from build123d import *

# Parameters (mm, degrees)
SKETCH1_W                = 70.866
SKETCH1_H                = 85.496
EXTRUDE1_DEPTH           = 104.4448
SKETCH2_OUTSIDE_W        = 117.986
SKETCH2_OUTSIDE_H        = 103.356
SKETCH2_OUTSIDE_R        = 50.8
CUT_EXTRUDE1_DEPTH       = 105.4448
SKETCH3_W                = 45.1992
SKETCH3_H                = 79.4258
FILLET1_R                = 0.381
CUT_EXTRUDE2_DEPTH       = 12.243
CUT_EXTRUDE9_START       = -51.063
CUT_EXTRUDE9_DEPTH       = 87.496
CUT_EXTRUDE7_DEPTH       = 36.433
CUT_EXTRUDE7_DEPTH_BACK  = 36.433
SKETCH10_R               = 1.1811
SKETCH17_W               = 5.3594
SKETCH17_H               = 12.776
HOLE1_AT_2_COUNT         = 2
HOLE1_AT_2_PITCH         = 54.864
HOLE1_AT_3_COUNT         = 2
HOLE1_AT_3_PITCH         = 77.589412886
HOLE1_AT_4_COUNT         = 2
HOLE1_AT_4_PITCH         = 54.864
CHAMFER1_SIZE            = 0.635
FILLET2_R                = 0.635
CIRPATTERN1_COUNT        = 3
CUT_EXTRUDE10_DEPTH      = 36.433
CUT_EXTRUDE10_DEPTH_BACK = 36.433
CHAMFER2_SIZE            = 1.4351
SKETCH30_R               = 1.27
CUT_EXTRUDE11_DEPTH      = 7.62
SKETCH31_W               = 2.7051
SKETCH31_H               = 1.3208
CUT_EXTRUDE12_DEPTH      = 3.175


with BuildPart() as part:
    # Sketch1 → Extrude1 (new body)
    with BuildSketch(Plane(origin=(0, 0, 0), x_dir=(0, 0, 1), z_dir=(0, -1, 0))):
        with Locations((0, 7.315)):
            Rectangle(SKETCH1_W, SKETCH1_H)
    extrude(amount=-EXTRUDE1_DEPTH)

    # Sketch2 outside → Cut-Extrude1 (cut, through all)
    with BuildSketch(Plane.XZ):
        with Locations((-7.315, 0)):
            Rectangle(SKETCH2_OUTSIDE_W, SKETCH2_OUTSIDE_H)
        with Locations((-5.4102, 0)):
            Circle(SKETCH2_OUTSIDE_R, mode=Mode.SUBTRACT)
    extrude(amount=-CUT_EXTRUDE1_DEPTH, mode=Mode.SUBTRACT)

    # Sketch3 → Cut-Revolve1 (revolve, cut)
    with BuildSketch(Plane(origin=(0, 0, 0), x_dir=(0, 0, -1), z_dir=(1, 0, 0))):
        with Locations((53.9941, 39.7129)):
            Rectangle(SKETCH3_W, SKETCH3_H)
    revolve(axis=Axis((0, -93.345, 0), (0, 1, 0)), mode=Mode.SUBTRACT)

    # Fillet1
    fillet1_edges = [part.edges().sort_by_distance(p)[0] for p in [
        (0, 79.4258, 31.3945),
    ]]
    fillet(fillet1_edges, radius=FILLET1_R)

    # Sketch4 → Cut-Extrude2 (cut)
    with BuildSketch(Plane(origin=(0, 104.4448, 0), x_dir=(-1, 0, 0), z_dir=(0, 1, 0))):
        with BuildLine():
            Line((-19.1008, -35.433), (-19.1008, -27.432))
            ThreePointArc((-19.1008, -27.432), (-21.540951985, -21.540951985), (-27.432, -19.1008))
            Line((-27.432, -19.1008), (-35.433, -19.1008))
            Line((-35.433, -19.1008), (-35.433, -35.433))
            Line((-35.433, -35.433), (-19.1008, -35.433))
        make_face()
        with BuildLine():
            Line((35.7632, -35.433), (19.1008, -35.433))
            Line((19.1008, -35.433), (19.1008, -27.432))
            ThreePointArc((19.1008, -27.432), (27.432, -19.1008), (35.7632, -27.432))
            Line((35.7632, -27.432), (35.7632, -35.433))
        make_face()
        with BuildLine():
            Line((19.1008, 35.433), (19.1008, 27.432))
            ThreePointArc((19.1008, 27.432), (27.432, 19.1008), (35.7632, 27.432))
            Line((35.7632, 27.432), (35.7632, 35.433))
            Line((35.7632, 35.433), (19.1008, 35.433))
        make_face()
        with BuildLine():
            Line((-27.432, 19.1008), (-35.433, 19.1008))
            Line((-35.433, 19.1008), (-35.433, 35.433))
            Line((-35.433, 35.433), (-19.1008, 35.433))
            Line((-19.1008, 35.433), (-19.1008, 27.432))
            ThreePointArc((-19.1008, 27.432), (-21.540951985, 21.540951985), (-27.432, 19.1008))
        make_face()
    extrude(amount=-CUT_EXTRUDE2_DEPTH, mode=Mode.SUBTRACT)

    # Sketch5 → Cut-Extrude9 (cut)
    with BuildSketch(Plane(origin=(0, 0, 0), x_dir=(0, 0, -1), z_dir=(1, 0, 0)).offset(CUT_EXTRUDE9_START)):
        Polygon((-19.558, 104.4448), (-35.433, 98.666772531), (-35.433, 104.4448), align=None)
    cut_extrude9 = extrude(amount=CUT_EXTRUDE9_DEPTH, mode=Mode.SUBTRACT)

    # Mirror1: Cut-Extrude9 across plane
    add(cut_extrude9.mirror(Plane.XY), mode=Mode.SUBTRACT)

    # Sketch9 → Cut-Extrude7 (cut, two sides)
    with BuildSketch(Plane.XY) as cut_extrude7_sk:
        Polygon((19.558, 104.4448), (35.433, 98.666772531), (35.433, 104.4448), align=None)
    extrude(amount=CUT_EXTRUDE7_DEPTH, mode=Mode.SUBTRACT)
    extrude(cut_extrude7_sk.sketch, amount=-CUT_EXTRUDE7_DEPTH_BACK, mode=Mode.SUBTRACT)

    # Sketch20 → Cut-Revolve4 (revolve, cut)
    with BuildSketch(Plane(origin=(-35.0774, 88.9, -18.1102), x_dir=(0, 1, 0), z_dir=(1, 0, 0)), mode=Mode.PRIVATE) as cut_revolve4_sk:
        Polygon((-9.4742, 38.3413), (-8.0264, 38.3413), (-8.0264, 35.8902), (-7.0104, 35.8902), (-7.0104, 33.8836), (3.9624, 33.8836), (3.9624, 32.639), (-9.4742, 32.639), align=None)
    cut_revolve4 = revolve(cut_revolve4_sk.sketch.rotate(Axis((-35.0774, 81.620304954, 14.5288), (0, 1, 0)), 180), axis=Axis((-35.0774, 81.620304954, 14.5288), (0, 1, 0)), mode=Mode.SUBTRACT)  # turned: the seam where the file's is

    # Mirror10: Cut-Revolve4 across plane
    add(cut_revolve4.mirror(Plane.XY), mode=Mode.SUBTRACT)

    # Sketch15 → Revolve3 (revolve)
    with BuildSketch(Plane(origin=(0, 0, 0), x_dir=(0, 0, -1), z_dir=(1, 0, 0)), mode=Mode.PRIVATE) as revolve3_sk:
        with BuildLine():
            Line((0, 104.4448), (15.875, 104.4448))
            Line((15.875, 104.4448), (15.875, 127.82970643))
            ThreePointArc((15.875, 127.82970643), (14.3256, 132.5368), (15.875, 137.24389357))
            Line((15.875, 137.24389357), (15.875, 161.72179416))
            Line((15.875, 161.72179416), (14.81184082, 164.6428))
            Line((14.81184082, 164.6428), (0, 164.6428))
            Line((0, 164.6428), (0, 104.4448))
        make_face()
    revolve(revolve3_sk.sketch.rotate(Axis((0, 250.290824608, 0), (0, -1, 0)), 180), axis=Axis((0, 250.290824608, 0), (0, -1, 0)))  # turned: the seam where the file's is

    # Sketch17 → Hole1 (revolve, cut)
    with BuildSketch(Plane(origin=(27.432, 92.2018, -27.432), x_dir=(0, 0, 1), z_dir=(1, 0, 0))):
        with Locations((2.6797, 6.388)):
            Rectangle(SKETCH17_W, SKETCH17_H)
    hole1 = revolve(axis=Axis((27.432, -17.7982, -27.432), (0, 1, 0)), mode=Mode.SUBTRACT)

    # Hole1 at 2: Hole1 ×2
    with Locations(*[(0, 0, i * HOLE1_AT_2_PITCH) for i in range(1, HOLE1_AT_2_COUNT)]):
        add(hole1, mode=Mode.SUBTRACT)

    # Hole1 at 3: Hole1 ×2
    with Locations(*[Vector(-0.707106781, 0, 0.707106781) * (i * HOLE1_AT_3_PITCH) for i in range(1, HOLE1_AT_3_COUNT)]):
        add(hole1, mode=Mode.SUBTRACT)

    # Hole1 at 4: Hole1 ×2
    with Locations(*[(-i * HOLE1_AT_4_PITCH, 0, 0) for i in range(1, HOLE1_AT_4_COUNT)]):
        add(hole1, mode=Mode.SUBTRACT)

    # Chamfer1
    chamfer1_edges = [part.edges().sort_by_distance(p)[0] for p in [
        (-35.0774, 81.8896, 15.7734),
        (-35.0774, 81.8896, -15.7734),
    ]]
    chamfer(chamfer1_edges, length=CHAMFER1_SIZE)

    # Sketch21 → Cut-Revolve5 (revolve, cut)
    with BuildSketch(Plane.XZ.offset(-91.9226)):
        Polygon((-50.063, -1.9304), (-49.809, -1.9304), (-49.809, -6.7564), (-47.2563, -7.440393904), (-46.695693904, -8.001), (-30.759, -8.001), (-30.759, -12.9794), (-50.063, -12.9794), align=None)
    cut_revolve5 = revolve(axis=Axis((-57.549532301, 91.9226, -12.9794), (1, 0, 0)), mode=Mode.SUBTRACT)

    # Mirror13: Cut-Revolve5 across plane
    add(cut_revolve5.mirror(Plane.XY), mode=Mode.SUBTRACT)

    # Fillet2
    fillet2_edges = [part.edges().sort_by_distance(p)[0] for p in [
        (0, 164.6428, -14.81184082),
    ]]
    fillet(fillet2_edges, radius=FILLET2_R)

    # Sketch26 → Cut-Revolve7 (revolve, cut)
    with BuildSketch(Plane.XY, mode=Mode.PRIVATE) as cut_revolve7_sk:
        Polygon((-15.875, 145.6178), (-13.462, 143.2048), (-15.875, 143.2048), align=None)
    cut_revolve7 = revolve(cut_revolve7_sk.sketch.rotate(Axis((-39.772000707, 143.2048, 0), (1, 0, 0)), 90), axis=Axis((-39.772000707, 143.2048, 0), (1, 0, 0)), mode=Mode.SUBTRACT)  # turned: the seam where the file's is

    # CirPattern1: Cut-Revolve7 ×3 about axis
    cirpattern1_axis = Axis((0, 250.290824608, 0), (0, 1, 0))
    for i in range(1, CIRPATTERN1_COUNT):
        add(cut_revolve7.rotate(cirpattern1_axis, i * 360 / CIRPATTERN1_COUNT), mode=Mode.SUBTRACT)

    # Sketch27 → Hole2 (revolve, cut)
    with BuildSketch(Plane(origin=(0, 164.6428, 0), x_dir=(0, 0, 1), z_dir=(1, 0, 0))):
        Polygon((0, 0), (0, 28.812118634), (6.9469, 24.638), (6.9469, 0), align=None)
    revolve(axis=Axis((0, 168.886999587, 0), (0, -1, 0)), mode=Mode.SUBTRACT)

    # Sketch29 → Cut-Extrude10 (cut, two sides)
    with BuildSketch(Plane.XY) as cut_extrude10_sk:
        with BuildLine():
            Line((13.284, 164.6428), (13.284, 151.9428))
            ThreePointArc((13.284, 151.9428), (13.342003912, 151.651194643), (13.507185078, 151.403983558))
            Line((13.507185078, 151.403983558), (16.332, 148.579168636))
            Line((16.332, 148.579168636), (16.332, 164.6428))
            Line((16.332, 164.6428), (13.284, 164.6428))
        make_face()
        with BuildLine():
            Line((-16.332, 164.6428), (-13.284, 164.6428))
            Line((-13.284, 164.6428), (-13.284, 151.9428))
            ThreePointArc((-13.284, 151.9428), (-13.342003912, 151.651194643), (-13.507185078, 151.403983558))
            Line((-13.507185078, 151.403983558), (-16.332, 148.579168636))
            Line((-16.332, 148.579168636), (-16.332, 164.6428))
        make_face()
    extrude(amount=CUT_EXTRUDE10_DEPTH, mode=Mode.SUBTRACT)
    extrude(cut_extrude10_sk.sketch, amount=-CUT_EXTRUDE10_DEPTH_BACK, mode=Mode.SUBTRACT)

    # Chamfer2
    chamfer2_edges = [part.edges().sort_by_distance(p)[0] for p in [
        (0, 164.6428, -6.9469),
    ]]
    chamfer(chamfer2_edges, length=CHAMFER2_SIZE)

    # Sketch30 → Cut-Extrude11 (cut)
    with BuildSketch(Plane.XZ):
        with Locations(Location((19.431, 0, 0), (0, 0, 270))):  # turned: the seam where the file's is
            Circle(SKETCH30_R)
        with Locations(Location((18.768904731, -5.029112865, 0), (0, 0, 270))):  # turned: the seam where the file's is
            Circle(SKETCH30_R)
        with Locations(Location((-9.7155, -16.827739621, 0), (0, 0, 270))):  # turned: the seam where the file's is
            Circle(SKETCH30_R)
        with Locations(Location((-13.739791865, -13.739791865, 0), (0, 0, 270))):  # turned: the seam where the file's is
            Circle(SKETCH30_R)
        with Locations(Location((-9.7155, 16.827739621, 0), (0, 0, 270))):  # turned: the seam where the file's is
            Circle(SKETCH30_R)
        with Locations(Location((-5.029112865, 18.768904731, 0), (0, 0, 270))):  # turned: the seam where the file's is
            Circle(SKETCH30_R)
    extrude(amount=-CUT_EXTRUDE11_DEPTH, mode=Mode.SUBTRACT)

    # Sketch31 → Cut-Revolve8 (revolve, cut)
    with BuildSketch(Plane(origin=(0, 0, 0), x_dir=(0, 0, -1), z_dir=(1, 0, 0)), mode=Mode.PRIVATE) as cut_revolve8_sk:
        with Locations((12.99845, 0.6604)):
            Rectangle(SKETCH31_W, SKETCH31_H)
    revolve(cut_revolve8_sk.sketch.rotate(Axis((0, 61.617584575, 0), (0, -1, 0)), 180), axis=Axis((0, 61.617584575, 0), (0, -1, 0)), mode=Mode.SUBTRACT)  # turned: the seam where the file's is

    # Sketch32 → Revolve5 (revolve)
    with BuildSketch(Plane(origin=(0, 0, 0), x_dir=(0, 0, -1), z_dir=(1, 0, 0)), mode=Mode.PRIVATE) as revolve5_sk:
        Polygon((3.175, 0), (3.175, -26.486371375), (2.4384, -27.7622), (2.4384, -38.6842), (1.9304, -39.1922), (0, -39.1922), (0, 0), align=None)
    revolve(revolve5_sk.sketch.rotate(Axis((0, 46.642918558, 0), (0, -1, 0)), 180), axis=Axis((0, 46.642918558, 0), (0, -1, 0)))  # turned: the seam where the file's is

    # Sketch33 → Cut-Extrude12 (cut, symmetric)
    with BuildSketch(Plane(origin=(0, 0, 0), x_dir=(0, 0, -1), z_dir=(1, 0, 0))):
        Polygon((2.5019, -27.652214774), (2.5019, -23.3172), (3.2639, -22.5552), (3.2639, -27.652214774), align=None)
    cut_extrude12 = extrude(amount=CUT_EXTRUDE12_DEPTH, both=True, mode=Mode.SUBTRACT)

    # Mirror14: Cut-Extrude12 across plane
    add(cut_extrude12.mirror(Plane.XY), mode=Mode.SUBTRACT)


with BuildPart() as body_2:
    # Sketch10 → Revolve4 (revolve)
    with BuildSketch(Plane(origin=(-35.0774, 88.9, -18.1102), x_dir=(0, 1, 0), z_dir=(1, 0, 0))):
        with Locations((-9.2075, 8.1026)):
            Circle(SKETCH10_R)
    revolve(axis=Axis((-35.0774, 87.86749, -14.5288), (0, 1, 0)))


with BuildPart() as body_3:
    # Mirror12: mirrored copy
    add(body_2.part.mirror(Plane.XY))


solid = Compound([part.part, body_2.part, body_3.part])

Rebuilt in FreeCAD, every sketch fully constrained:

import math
import FreeCAD as App
import Part
import Sketcher
Q = App.Units.Quantity


def edges_at(feature, points):
    """Names of the edges that pass closest to the given points."""
    edges = feature.Shape.Edges
    near = lambda p: min(range(len(edges)), key=lambda i: edges[i].distToShape(Part.Vertex(*p))[0])
    return sorted({f"Edge{near(p) + 1}" for p in points})

doc = App.newDocument("Part")
body = doc.addObject("PartDesign::Body", "Body")

# Sketch on XZ plane
sketch1 = body.newObject("Sketcher::SketchObject", "Sketch")
sketch1.AttachmentSupport = (doc.getObject("XZ_Plane"), [""])
sketch1.MapMode = "FlatFace"
sketch1.addGeometry([
    Part.LineSegment(App.Vector(-50.063, -35.433, 0), App.Vector(35.433, -35.433, 0)),
    Part.LineSegment(App.Vector(35.433, -35.433, 0), App.Vector(35.433, 35.433, 0)),
    Part.LineSegment(App.Vector(35.433, 35.433, 0), App.Vector(-50.063, 35.433, 0)),
    Part.LineSegment(App.Vector(-50.063, 35.433, 0), App.Vector(-50.063, -35.433, 0)),
], False)
sketch1.addConstraint([
    Sketcher.Constraint("Coincident", 0, 2, 1, 1),
    Sketcher.Constraint("Coincident", 1, 2, 2, 1),
    Sketcher.Constraint("Coincident", 2, 2, 3, 1),
    Sketcher.Constraint("Coincident", 3, 2, 0, 1),
    Sketcher.Constraint("Horizontal", 0),
    Sketcher.Constraint("Vertical", 1),
    Sketcher.Constraint("Horizontal", 2),
    Sketcher.Constraint("Vertical", 3),
    Sketcher.Constraint("DistanceY", 1, 1, 1, 2, Q("2.79 in")),
    Sketcher.Constraint("DistanceX", -1, 1, 0, 2, Q("1.395 in")),
    Sketcher.Constraint("DistanceY", 0, 2, -1, 1, Q("1.395 in")),
    Sketcher.Constraint("DistanceX", 0, 1, 0, 2, Q("85.496 mm")),
])
pad1 = body.newObject("PartDesign::Pad", "Pad")
pad1.Profile = sketch1
pad1.Length = Q("4.112 in")
pad1.Reversed = True

# Sketch on XZ plane
sketch2 = body.newObject("Sketcher::SketchObject", "Sketch001")
sketch2.AttachmentSupport = (doc.getObject("XZ_Plane"), [""])
sketch2.MapMode = "FlatFace"
sketch2.addGeometry([
    Part.LineSegment(App.Vector(-66.308, 51.678, 0), App.Vector(-66.308, -51.678, 0)),  # 0
    Part.LineSegment(App.Vector(-66.308, -51.678, 0), App.Vector(51.678, -51.678, 0)),  # 1
    Part.LineSegment(App.Vector(51.678, -51.678, 0), App.Vector(51.678, 51.678, 0)),  # 2
    Part.LineSegment(App.Vector(51.678, 51.678, 0), App.Vector(-66.308, 51.678, 0)),  # 3
    Part.Circle(App.Vector(-5.4102, 0, 0), App.Vector(0, 0, 1), 50.8),  # 4
], False)
sketch2.addConstraint([
    Sketcher.Constraint("Coincident", 0, 2, 1, 1),
    Sketcher.Constraint("Coincident", 1, 2, 2, 1),
    Sketcher.Constraint("Coincident", 2, 2, 3, 1),
    Sketcher.Constraint("Coincident", 3, 2, 0, 1),
    Sketcher.Constraint("Vertical", 0),
    Sketcher.Constraint("Horizontal", 1),
    Sketcher.Constraint("Vertical", 2),
    Sketcher.Constraint("Horizontal", 3),
    Sketcher.Constraint("PointOnObject", 4, 3, -1),
    Sketcher.Constraint("Diameter", 4, Q("4 in")),
    Sketcher.Constraint("DistanceX", 4, 3, -1, 1, Q("0.213 in")),
    Sketcher.Constraint("DistanceX", 1, 1, 1, 2, Q("117.986 mm")),
    Sketcher.Constraint("DistanceY", 0, 2, 0, 1, Q("103.356 mm")),
    Sketcher.Constraint("DistanceX", 0, 2, -1, 1, Q("66.308 mm")),
    Sketcher.Constraint("DistanceY", 0, 2, -1, 1, Q("51.678 mm")),
])
pocket1 = body.newObject("PartDesign::Pocket", "Pocket")
pocket1.Profile = sketch2
pocket1.Type = "ThroughAll"

# Sketch on YZ plane
sketch3 = body.newObject("Sketcher::SketchObject", "Sketch002")
sketch3.AttachmentSupport = (doc.getObject("YZ_Plane"), [""])
sketch3.MapMode = "FlatFace"
sketch3.addGeometry([
    Part.LineSegment(App.Vector(79.4258, -31.3945, 0), App.Vector(0, -31.3945, 0)),
    Part.LineSegment(App.Vector(0, -31.3945, 0), App.Vector(0, -76.5937, 0)),
    Part.LineSegment(App.Vector(0, -76.5937, 0), App.Vector(79.4258, -76.5937, 0)),
    Part.LineSegment(App.Vector(79.4258, -76.5937, 0), App.Vector(79.4258, -31.3945, 0)),
], False)
sketch3.addConstraint([
    Sketcher.Constraint("Coincident", 0, 2, 1, 1),
    Sketcher.Constraint("Coincident", 1, 2, 2, 1),
    Sketcher.Constraint("Coincident", 2, 2, 3, 1),
    Sketcher.Constraint("Coincident", 3, 2, 0, 1),
    Sketcher.Constraint("Horizontal", 0),
    Sketcher.Constraint("Vertical", 1),
    Sketcher.Constraint("Horizontal", 2),
    Sketcher.Constraint("Vertical", 3),
    Sketcher.Constraint("PointOnObject", 0, 2, -2),
    Sketcher.Constraint("DistanceX", 0, 2, 0, 1, Q("3.127 in")),
    Sketcher.Constraint("DistanceY", 1, 2, 1, 1, Q("45.1992 mm")),
    Sketcher.Constraint("DistanceY", 1, 2, -1, 1, Q("3.0155 in")),
])
groove = body.newObject("PartDesign::Groove", "Groove")
groove.Profile = sketch3
groove.ReferenceAxis = (sketch3, ["H_Axis"])
groove.Angle = 360
doc.recompute()

fillet = body.newObject("PartDesign::Fillet", "Fillet")
fillet.Base = (groove, edges_at(groove, [(0, 79.426, 31.395)]))
fillet.Radius = Q("0.015 in")

# Sketch on XZ plane
sketch4 = body.newObject("Sketcher::SketchObject", "Sketch003")
sketch4.AttachmentSupport = (doc.getObject("XZ_Plane"), [""])
sketch4.MapMode = "FlatFace"
sketch4.AttachmentOffset = App.Placement(App.Vector(0, 0, -4.112 * 25.4), App.Rotation())
sketch4.addGeometry([
    Part.LineSegment(App.Vector(19.1008, -35.433, 0), App.Vector(19.1008, -27.432, 0)),  # 0
    Part.ArcOfCircle(Part.Circle(App.Vector(27.432, -27.432, 0), App.Vector(0, 0, 1), 8.3312), math.radians(90), math.radians(180)),  # 1
    Part.LineSegment(App.Vector(27.432, -19.1008, 0), App.Vector(35.433, -19.1008, 0)),  # 2
    Part.LineSegment(App.Vector(35.433, -19.1008, 0), App.Vector(35.433, -35.433, 0)),  # 3
    Part.LineSegment(App.Vector(35.433, -35.433, 0), App.Vector(19.1008, -35.433, 0)),  # 4
    Part.LineSegment(App.Vector(-19.1008, -35.433, 0), App.Vector(-35.7632, -35.433, 0)),  # 5
    Part.LineSegment(App.Vector(-35.7632, -35.433, 0), App.Vector(-35.7632, -27.432, 0)),  # 6
    Part.ArcOfCircle(Part.Circle(App.Vector(-27.432, -27.432, 0), App.Vector(0, 0, 1), 8.3312), math.radians(0), math.radians(180)),  # 7
    Part.LineSegment(App.Vector(-19.1008, -27.432, 0), App.Vector(-19.1008, -35.433, 0)),  # 8
    Part.LineSegment(App.Vector(-19.1008, 35.433, 0), App.Vector(-19.1008, 27.432, 0)),  # 9
    Part.ArcOfCircle(Part.Circle(App.Vector(-27.432, 27.432, 0), App.Vector(0, 0, 1), 8.3312), math.radians(180), math.radians(360)),  # 10
    Part.LineSegment(App.Vector(-35.7632, 27.432, 0), App.Vector(-35.7632, 35.433, 0)),  # 11
    Part.LineSegment(App.Vector(-35.7632, 35.433, 0), App.Vector(-19.1008, 35.433, 0)),  # 12
    Part.LineSegment(App.Vector(35.433, 19.1008, 0), App.Vector(27.432, 19.1008, 0)),  # 13
    Part.ArcOfCircle(Part.Circle(App.Vector(27.432, 27.432, 0), App.Vector(0, 0, 1), 8.3312), math.radians(-180), math.radians(-90)),  # 14
    Part.LineSegment(App.Vector(19.1008, 27.432, 0), App.Vector(19.1008, 35.433, 0)),  # 15
    Part.LineSegment(App.Vector(19.1008, 35.433, 0), App.Vector(35.433, 35.433, 0)),  # 16
    Part.LineSegment(App.Vector(35.433, 35.433, 0), App.Vector(35.433, 19.1008, 0)),  # 17
], False)
sketch4.addConstraint([
    Sketcher.Constraint("Tangent", 0, 2, 1, 2),
    Sketcher.Constraint("Tangent", 1, 1, 2, 1),
    Sketcher.Constraint("Coincident", 2, 2, 3, 1),
    Sketcher.Constraint("Coincident", 3, 2, 4, 1),
    Sketcher.Constraint("Coincident", 4, 2, 0, 1),
    Sketcher.Constraint("Coincident", 5, 2, 6, 1),
    Sketcher.Constraint("Tangent", 6, 2, 7, 2),
    Sketcher.Constraint("Tangent", 7, 1, 8, 1),
    Sketcher.Constraint("Coincident", 8, 2, 5, 1),
    Sketcher.Constraint("Tangent", 9, 2, 10, 2),
    Sketcher.Constraint("Tangent", 10, 1, 11, 1),
    Sketcher.Constraint("Coincident", 11, 2, 12, 1),
    Sketcher.Constraint("Coincident", 12, 2, 9, 1),
    Sketcher.Constraint("Tangent", 13, 2, 14, 2),
    Sketcher.Constraint("Tangent", 14, 1, 15, 1),
    Sketcher.Constraint("Coincident", 15, 2, 16, 1),
    Sketcher.Constraint("Coincident", 16, 2, 17, 1),
    Sketcher.Constraint("Coincident", 17, 2, 13, 1),
    Sketcher.Constraint("Vertical", 0),
    Sketcher.Constraint("Horizontal", 2),
    Sketcher.Constraint("Vertical", 3),
    Sketcher.Constraint("Horizontal", 4),
    Sketcher.Constraint("Horizontal", 5),
    Sketcher.Constraint("Vertical", 6),
    Sketcher.Constraint("Vertical", 8),
    Sketcher.Constraint("Vertical", 9),
    Sketcher.Constraint("Vertical", 11),
    Sketcher.Constraint("Horizontal", 12),
    Sketcher.Constraint("Horizontal", 13),
    Sketcher.Constraint("Vertical", 15),
    Sketcher.Constraint("Horizontal", 16),
    Sketcher.Constraint("Vertical", 17),
    Sketcher.Constraint("Equal", 1, 7),
    Sketcher.Constraint("Equal", 7, 10),
    Sketcher.Constraint("Equal", 10, 14),
    Sketcher.Constraint("Symmetric", 1, 3, 10, 3, -1, 1),
    Sketcher.Constraint("Symmetric", 7, 3, 14, 3, -1, 1),
    Sketcher.Constraint("Symmetric", 1, 3, 7, 3, -2),
    Sketcher.Constraint("Symmetric", 3, 2, 16, 2, -1),
    Sketcher.Constraint("Horizontal", 4, 2, 5, 2),
    Sketcher.Constraint("Horizontal", 12, 2, 15, 2),
    Sketcher.Constraint("Equal", 13, 0),
    Sketcher.Constraint("Radius", 1, Q("0.328 in")),
    Sketcher.Constraint("DistanceX", 2, 1, 2, 2, Q("0.315 in")),
    Sketcher.Constraint("DistanceX", -1, 1, 1, 3, Q("1.08 in")),
    Sketcher.Constraint("DistanceY", 1, 3, -1, 1, Q("1.08 in")),
])
pocket2 = body.newObject("PartDesign::Pocket", "Pocket001")
pocket2.Profile = sketch4
pocket2.Length = 12.243
pocket2.Reversed = True

# Sketch on YZ plane
sketch5 = body.newObject("Sketcher::SketchObject", "Sketch004")
sketch5.AttachmentSupport = (doc.getObject("YZ_Plane"), [""])
sketch5.MapMode = "FlatFace"
sketch5.AttachmentOffset = App.Placement(App.Vector(0, 0, -51.063), App.Rotation())
sketch5.addGeometry([
    Part.LineSegment(App.Vector(98.666773, 35.433, 0), App.Vector(104.4448, 19.558, 0)),
    Part.LineSegment(App.Vector(104.4448, 19.558, 0), App.Vector(104.4448, 35.433, 0)),
    Part.LineSegment(App.Vector(104.4448, 35.433, 0), App.Vector(98.666773, 35.433, 0)),
], False)
sketch5.addConstraint([
    Sketcher.Constraint("Coincident", 0, 2, 1, 1),
    Sketcher.Constraint("Coincident", 1, 2, 2, 1),
    Sketcher.Constraint("Coincident", 2, 2, 0, 1),
    Sketcher.Constraint("Vertical", 1),
    Sketcher.Constraint("Horizontal", 2),
    Sketcher.Constraint("Angle", 0, Q("-70 deg")),
    Sketcher.Constraint("DistanceY", 1, 1, 1, 2, Q("0.625 in")),
    Sketcher.Constraint("DistanceY", -1, 1, 0, 2, Q("0.77 in")),
    Sketcher.Constraint("DistanceX", -1, 1, 0, 2, Q("4.112 in")),
])
pocket3 = body.newObject("PartDesign::Pocket", "Pocket002")
pocket3.Profile = sketch5
pocket3.Length = 87.496
pocket3.Reversed = True
doc.recompute()

mirrored = body.newObject("PartDesign::Mirrored", "Mirrored")
mirrored.Originals = [pocket3]
mirrored.MirrorPlane = (doc.getObject("XY_Plane"), [""])
body.Tip = mirrored

# Sketch on XY plane
sketch6 = body.newObject("Sketcher::SketchObject", "Sketch005")
sketch6.AttachmentSupport = (doc.getObject("XY_Plane"), [""])
sketch6.MapMode = "FlatFace"
sketch6.addGeometry([
    Part.LineSegment(App.Vector(19.558, 104.4448, 0), App.Vector(35.433, 98.666773, 0)),
    Part.LineSegment(App.Vector(35.433, 98.666773, 0), App.Vector(35.433, 104.4448, 0)),
    Part.LineSegment(App.Vector(35.433, 104.4448, 0), App.Vector(19.558, 104.4448, 0)),
], False)
sketch6.addConstraint([
    Sketcher.Constraint("Coincident", 0, 2, 1, 1),
    Sketcher.Constraint("Coincident", 1, 2, 2, 1),
    Sketcher.Constraint("Coincident", 2, 2, 0, 1),
    Sketcher.Constraint("Vertical", 1),
    Sketcher.Constraint("Horizontal", 2),
    Sketcher.Constraint("Angle", 0, Q("-20 deg")),
    Sketcher.Constraint("DistanceX", 2, 2, 2, 1, Q("0.625 in")),
    Sketcher.Constraint("DistanceX", -1, 1, 2, 2, Q("0.77 in")),
    Sketcher.Constraint("DistanceY", -1, 1, 1, 2, Q("4.112 in")),
])
pocket4 = body.newObject("PartDesign::Pocket", "Pocket003")
pocket4.Profile = sketch6
pocket4.Type = "ThroughAll"
pocket4.Midplane = True

# Sketch on YZ plane
sketch7 = body.newObject("Sketcher::SketchObject", "Sketch006")
sketch7.AttachmentSupport = (doc.getObject("YZ_Plane"), [""])
sketch7.MapMode = "FlatFace"
sketch7.AttachmentOffset = App.Placement(App.Vector(0, 0, -1.381 * 25.4), App.Rotation())
sketch7.addGeometry([
    Part.LineSegment(App.Vector(80.8736, 20.2311, 0), App.Vector(79.4258, 20.2311, 0)),  # 0
    Part.LineSegment(App.Vector(79.4258, 20.2311, 0), App.Vector(79.4258, 14.5288, 0)),  # 1
    Part.LineSegment(App.Vector(79.4258, 14.5288, 0), App.Vector(92.8624, 14.5288, 0)),  # 2
    Part.LineSegment(App.Vector(92.8624, 14.5288, 0), App.Vector(92.8624, 15.7734, 0)),  # 3
    Part.LineSegment(App.Vector(92.8624, 15.7734, 0), App.Vector(81.8896, 15.7734, 0)),  # 4
    Part.LineSegment(App.Vector(81.8896, 15.7734, 0), App.Vector(81.8896, 17.78, 0)),  # 5
    Part.LineSegment(App.Vector(81.8896, 17.78, 0), App.Vector(80.8736, 17.78, 0)),  # 6
    Part.LineSegment(App.Vector(80.8736, 17.78, 0), App.Vector(80.8736, 20.2311, 0)),  # 7
], False)
sketch7.addGeometry(Part.LineSegment(App.Vector(79.4258, 14.5288, 0), App.Vector(92.8624, 14.5288, 0)), True)  # axis
sketch7.addConstraint([
    Sketcher.Constraint("Coincident", 0, 2, 1, 1),
    Sketcher.Constraint("Coincident", 1, 2, 2, 1),
    Sketcher.Constraint("Coincident", 2, 2, 3, 1),
    Sketcher.Constraint("Coincident", 3, 2, 4, 1),
    Sketcher.Constraint("Coincident", 4, 2, 5, 1),
    Sketcher.Constraint("Coincident", 5, 2, 6, 1),
    Sketcher.Constraint("Coincident", 6, 2, 7, 1),
    Sketcher.Constraint("Coincident", 7, 2, 0, 1),
    Sketcher.Constraint("Horizontal", 0),
    Sketcher.Constraint("Vertical", 1),
    Sketcher.Constraint("Horizontal", 2),
    Sketcher.Constraint("Vertical", 3),
    Sketcher.Constraint("Horizontal", 4),
    Sketcher.Constraint("Vertical", 5),
    Sketcher.Constraint("Horizontal", 6),
    Sketcher.Constraint("Vertical", 7),
    Sketcher.Constraint("Horizontal", 8),
    Sketcher.Constraint("Coincident", 8, 1, 1, 2),
    Sketcher.Constraint("Vertical", 3, 2, 8, 2),
    Sketcher.Constraint("DistanceX", 6, 2, 6, 1, Q("0.04 in")),
    Sketcher.Constraint("DistanceY", -1, 1, 5, 2, Q("0.7 in")),
    Sketcher.Constraint("DistanceX", 0, 2, 0, 1, Q("0.057 in")),
    Sketcher.Constraint("DistanceX", 2, 1, 2, 2, Q("0.529 in")),
    Sketcher.Constraint("DistanceY", 3, 1, 3, 2, Q("0.049 in")),
    Sketcher.Constraint("DistanceY", 5, 1, 5, 2, Q("0.079 in")),
    Sketcher.Constraint("DistanceY", 1, 2, 1, 1, Q("0.2245 in")),
    Sketcher.Constraint("DistanceX", -1, 1, 0, 2, Q("3.127 in")),
])
groove2 = body.newObject("PartDesign::Groove", "Groove001")
groove2.Profile = sketch7
groove2.ReferenceAxis = (sketch7, ["Axis0"])
groove2.Angle = 360
doc.recompute()

mirrored2 = body.newObject("PartDesign::Mirrored", "Mirrored001")
mirrored2.Originals = [groove2]
mirrored2.MirrorPlane = (doc.getObject("XY_Plane"), [""])
body.Tip = mirrored2

# Sketch on YZ plane
sketch8 = body.newObject("Sketcher::SketchObject", "Sketch007")
sketch8.AttachmentSupport = (doc.getObject("YZ_Plane"), [""])
sketch8.MapMode = "FlatFace"
sketch8.addGeometry([
    Part.LineSegment(App.Vector(104.4448, 0, 0), App.Vector(104.4448, -15.875, 0)),  # 0
    Part.LineSegment(App.Vector(104.4448, -15.875, 0), App.Vector(127.829706, -15.875, 0)),  # 1
    Part.ArcOfCircle(Part.Circle(App.Vector(132.5368, -22.2504, 0), App.Vector(0, 0, 1), 7.9248), math.radians(53.560758), math.radians(126.439242)),  # 2
    Part.LineSegment(App.Vector(137.243894, -15.875, 0), App.Vector(161.721794, -15.875, 0)),  # 3
    Part.LineSegment(App.Vector(161.721794, -15.875, 0), App.Vector(164.6428, -14.811841, 0)),  # 4
    Part.LineSegment(App.Vector(164.6428, -14.811841, 0), App.Vector(164.6428, 0, 0)),  # 5
    Part.LineSegment(App.Vector(164.6428, 0, 0), App.Vector(104.4448, 0, 0)),  # 6
], False)
sketch8.addConstraint([
    Sketcher.Constraint("Coincident", 0, 2, 1, 1),
    Sketcher.Constraint("Coincident", 1, 2, 2, 2),
    Sketcher.Constraint("Coincident", 2, 1, 3, 1),
    Sketcher.Constraint("Coincident", 3, 2, 4, 1),
    Sketcher.Constraint("Coincident", 4, 2, 5, 1),
    Sketcher.Constraint("Coincident", 5, 2, 6, 1),
    Sketcher.Constraint("Coincident", 6, 2, 0, 1),
    Sketcher.Constraint("Vertical", 0),
    Sketcher.Constraint("Horizontal", 1),
    Sketcher.Constraint("Horizontal", 3),
    Sketcher.Constraint("Vertical", 5),
    Sketcher.Constraint("Horizontal", 6),
    Sketcher.Constraint("PointOnObject", 5, 2, -1),
    Sketcher.Constraint("Horizontal", 1, 2, 2, 1),
    Sketcher.Constraint("Angle", 4, Q("20 deg")),
    Sketcher.Constraint("Radius", 2, Q("0.312 in")),
    Sketcher.Constraint("DistanceX", 6, 2, 6, 1, Q("2.37 in")),
    Sketcher.Constraint("DistanceY", 0, 2, 0, 1, Q("0.625 in")),
    Sketcher.Constraint("DistanceY", 2, 3, -1, 1, Q("0.876 in")),
    Sketcher.Constraint("DistanceX", -1, 1, 0, 2, Q("4.112 in")),
    Sketcher.Constraint("DistanceX", 3, 1, 3, 2, Q("24.477901 mm")),
    Sketcher.Constraint("DistanceY", 5, 1, 5, 2, Q("14.811841 mm")),
])
revolution = body.newObject("PartDesign::Revolution", "Revolution")
revolution.Profile = sketch8
revolution.ReferenceAxis = (sketch8, ["H_Axis"])
revolution.Angle = 360

# Sketch on YZ plane
sketch9 = body.newObject("Sketcher::SketchObject", "Sketch008")
sketch9.AttachmentSupport = (doc.getObject("YZ_Plane"), [""])
sketch9.MapMode = "FlatFace"
sketch9.AttachmentOffset = App.Placement(App.Vector(0, 0, 1.08 * 25.4), App.Rotation())
sketch9.addGeometry([
    Part.LineSegment(App.Vector(79.4258, -27.432, 0), App.Vector(92.2018, -27.432, 0)),
    Part.LineSegment(App.Vector(92.2018, -27.432, 0), App.Vector(92.2018, -22.0726, 0)),
    Part.LineSegment(App.Vector(92.2018, -22.0726, 0), App.Vector(79.4258, -22.0726, 0)),
    Part.LineSegment(App.Vector(79.4258, -22.0726, 0), App.Vector(79.4258, -27.432, 0)),
], False)
sketch9.addGeometry(Part.LineSegment(App.Vector(79.4258, -27.432, 0), App.Vector(92.2018, -27.432, 0)), True)  # axis
sketch9.addConstraint([
    Sketcher.Constraint("Coincident", 0, 2, 1, 1),
    Sketcher.Constraint("Coincident", 1, 2, 2, 1),
    Sketcher.Constraint("Coincident", 2, 2, 3, 1),
    Sketcher.Constraint("Coincident", 3, 2, 0, 1),
    Sketcher.Constraint("Horizontal", 0),
    Sketcher.Constraint("Vertical", 1),
    Sketcher.Constraint("Horizontal", 2),
    Sketcher.Constraint("Vertical", 3),
    Sketcher.Constraint("Horizontal", 4),
    Sketcher.Constraint("Coincident", 4, 1, 3, 2),
    Sketcher.Constraint("Vertical", 1, 2, 4, 2),
    Sketcher.Constraint("DistanceY", 1, 1, 1, 2, Q("0.211 in")),
    Sketcher.Constraint("DistanceY", 0, 2, -1, 1, Q("1.08 in")),
    Sketcher.Constraint("DistanceX", -1, 1, 2, 2, Q("3.127 in")),
    Sketcher.Constraint("DistanceX", 0, 1, 0, 2, Q("12.776 mm")),
])
groove3 = body.newObject("PartDesign::Groove", "Groove002")
groove3.Profile = sketch9
groove3.ReferenceAxis = (sketch9, ["Axis0"])
groove3.Angle = 360
doc.recompute()

linearpattern = body.newObject("PartDesign::LinearPattern", "LinearPattern")
linearpattern.Originals = [groove3]
linearpattern.Direction = (doc.getObject("Z_Axis"), [""])
linearpattern.Mode = "offset"
linearpattern.Offset = Q("2.16 in")
linearpattern.Occurrences = 2
body.Tip = linearpattern
doc.recompute()

datumline = body.newObject("PartDesign::Line", "DatumLine")
datumline.Placement = App.Placement(App.Vector(0, 0, 0), App.Rotation(App.Vector(0, 0, 1), App.Vector(-0.707106781, 0, 0.707106781)))
linearpattern2 = body.newObject("PartDesign::LinearPattern", "LinearPattern001")
linearpattern2.Originals = [groove3]
linearpattern2.Direction = (datumline, [""])
linearpattern2.Mode = "offset"
linearpattern2.Offset = 77.589413
linearpattern2.Occurrences = 2
body.Tip = linearpattern2
doc.recompute()

linearpattern3 = body.newObject("PartDesign::LinearPattern", "LinearPattern002")
linearpattern3.Originals = [groove3]
linearpattern3.Direction = (doc.getObject("X_Axis"), [""])
linearpattern3.Mode = "offset"
linearpattern3.Offset = Q("2.16 in")
linearpattern3.Occurrences = 2
linearpattern3.Reversed = True
body.Tip = linearpattern3
doc.recompute()

chamfer = body.newObject("PartDesign::Chamfer", "Chamfer")
chamfer.Base = (linearpattern3, edges_at(linearpattern3, [(-35.077, 81.89, 15.773), (-35.077, 81.89, -15.773)]))
chamfer.Size = Q("0.025 in")

# Sketch on XZ plane
sketch10 = body.newObject("Sketcher::SketchObject", "Sketch009")
sketch10.AttachmentSupport = (doc.getObject("XZ_Plane"), [""])
sketch10.MapMode = "FlatFace"
sketch10.AttachmentOffset = App.Placement(App.Vector(0, 0, -3.619 * 25.4), App.Rotation())
sketch10.addGeometry([
    Part.LineSegment(App.Vector(-49.809, -1.9304, 0), App.Vector(-50.063, -1.9304, 0)),  # 0
    Part.LineSegment(App.Vector(-50.063, -1.9304, 0), App.Vector(-50.063, -12.9794, 0)),  # 1
    Part.LineSegment(App.Vector(-50.063, -12.9794, 0), App.Vector(-30.759, -12.9794, 0)),  # 2
    Part.LineSegment(App.Vector(-30.759, -12.9794, 0), App.Vector(-30.759, -8.001, 0)),  # 3
    Part.LineSegment(App.Vector(-30.759, -8.001, 0), App.Vector(-46.695694, -8.001, 0)),  # 4
    Part.LineSegment(App.Vector(-46.695694, -8.001, 0), App.Vector(-47.2563, -7.440394, 0)),  # 5
    Part.LineSegment(App.Vector(-47.2563, -7.440394, 0), App.Vector(-49.809, -6.7564, 0)),  # 6
    Part.LineSegment(App.Vector(-49.809, -6.7564, 0), App.Vector(-49.809, -1.9304, 0)),  # 7
], False)
sketch10.addGeometry(Part.LineSegment(App.Vector(-50.063, -12.9794, 0), App.Vector(-30.759, -12.9794, 0)), True)  # axis
sketch10.addConstraint([
    Sketcher.Constraint("Coincident", 0, 2, 1, 1),
    Sketcher.Constraint("Coincident", 1, 2, 2, 1),
    Sketcher.Constraint("Coincident", 2, 2, 3, 1),
    Sketcher.Constraint("Coincident", 3, 2, 4, 1),
    Sketcher.Constraint("Coincident", 4, 2, 5, 1),
    Sketcher.Constraint("Coincident", 5, 2, 6, 1),
    Sketcher.Constraint("Coincident", 6, 2, 7, 1),
    Sketcher.Constraint("Coincident", 7, 2, 0, 1),
    Sketcher.Constraint("Horizontal", 0),
    Sketcher.Constraint("Vertical", 1),
    Sketcher.Constraint("Horizontal", 2),
    Sketcher.Constraint("Vertical", 3),
    Sketcher.Constraint("Horizontal", 4),
    Sketcher.Constraint("Vertical", 7),
    Sketcher.Constraint("Horizontal", 8),
    Sketcher.Constraint("Coincident", 8, 1, 1, 2),
    Sketcher.Constraint("Vertical", 3, 2, 8, 2),
    Sketcher.Constraint("Angle", 5, Q("135 deg")),
    Sketcher.Constraint("Angle", 6, Q("165 deg")),
    Sketcher.Constraint("DistanceX", 0, 2, 0, 1, Q("0.01 in")),
    Sketcher.Constraint("DistanceX", 2, 1, 2, 2, Q("0.76 in")),
    Sketcher.Constraint("DistanceY", 7, 1, 7, 2, Q("0.19 in")),
    Sketcher.Constraint("DistanceY", 1, 2, 1, 1, Q("0.435 in")),
    Sketcher.Constraint("DistanceY", 3, 1, 3, 2, Q("0.196 in")),
    Sketcher.Constraint("DistanceY", 0, 2, -1, 1, Q("0.076 in")),
    Sketcher.Constraint("DistanceX", 0, 2, 5, 2, Q("0.1105 in")),
    Sketcher.Constraint("DistanceX", 0, 2, -1, 1, Q("50.063 mm")),
])
groove4 = body.newObject("PartDesign::Groove", "Groove003")
groove4.Profile = sketch10
groove4.ReferenceAxis = (sketch10, ["Axis0"])
groove4.Angle = 360
doc.recompute()

mirrored3 = body.newObject("PartDesign::Mirrored", "Mirrored002")
mirrored3.Originals = [groove4]
mirrored3.MirrorPlane = (doc.getObject("XY_Plane"), [""])
body.Tip = mirrored3
doc.recompute()

fillet2 = body.newObject("PartDesign::Fillet", "Fillet001")
fillet2.Base = (mirrored3, edges_at(mirrored3, [(0, 164.643, -14.812)]))
fillet2.Radius = Q("0.025 in")

# Sketch on XY plane
sketch11 = body.newObject("Sketcher::SketchObject", "Sketch010")
sketch11.AttachmentSupport = (doc.getObject("XY_Plane"), [""])
sketch11.MapMode = "FlatFace"
sketch11.addGeometry([
    Part.LineSegment(App.Vector(-13.462, 143.2048, 0), App.Vector(-15.875, 145.6178, 0)),
    Part.LineSegment(App.Vector(-15.875, 145.6178, 0), App.Vector(-15.875, 143.2048, 0)),
    Part.LineSegment(App.Vector(-15.875, 143.2048, 0), App.Vector(-13.462, 143.2048, 0)),
], False)
sketch11.addGeometry(Part.LineSegment(App.Vector(-15.875, 143.2048, 0), App.Vector(-13.462, 143.2048, 0)), True)  # axis
sketch11.addConstraint([
    Sketcher.Constraint("Coincident", 0, 2, 1, 1),
    Sketcher.Constraint("Coincident", 1, 2, 2, 1),
    Sketcher.Constraint("Coincident", 2, 2, 0, 1),
    Sketcher.Constraint("Vertical", 1),
    Sketcher.Constraint("Horizontal", 2),
    Sketcher.Constraint("Horizontal", 3),
    Sketcher.Constraint("Coincident", 3, 1, 1, 2),
    Sketcher.Constraint("Equal", 2, 3),
    Sketcher.Constraint("Equal", 3, 1),
    Sketcher.Constraint("DistanceX", 2, 1, 2, 2, Q("0.095 in")),
    Sketcher.Constraint("DistanceX", 2, 2, -1, 1, Q("0.53 in")),
    Sketcher.Constraint("DistanceY", -1, 1, 0, 2, Q("145.6178 mm")),
])
groove5 = body.newObject("PartDesign::Groove", "Groove004")
groove5.Profile = sketch11
groove5.ReferenceAxis = (sketch11, ["Axis0"])
groove5.Angle = 360
doc.recompute()

polarpattern = body.newObject("PartDesign::PolarPattern", "PolarPattern")
polarpattern.Originals = [groove5]
polarpattern.Axis = (doc.getObject("Y_Axis"), [""])
polarpattern.Angle = 360
polarpattern.Occurrences = 3
body.Tip = polarpattern

# Sketch on YZ plane
sketch12 = body.newObject("Sketcher::SketchObject", "Sketch011")
sketch12.AttachmentSupport = (doc.getObject("YZ_Plane"), [""])
sketch12.MapMode = "FlatFace"
sketch12.addGeometry([
    Part.LineSegment(App.Vector(135.830681, 0, 0), App.Vector(164.6428, 0, 0)),
    Part.LineSegment(App.Vector(164.6428, 0, 0), App.Vector(164.6428, 6.9469, 0)),
    Part.LineSegment(App.Vector(164.6428, 6.9469, 0), App.Vector(140.0048, 6.9469, 0)),
    Part.LineSegment(App.Vector(140.0048, 6.9469, 0), App.Vector(135.830681, 0, 0)),
], False)
sketch12.addConstraint([
    Sketcher.Constraint("Coincident", 0, 2, 1, 1),
    Sketcher.Constraint("Coincident", 1, 2, 2, 1),
    Sketcher.Constraint("Coincident", 2, 2, 3, 1),
    Sketcher.Constraint("Coincident", 3, 2, 0, 1),
    Sketcher.Constraint("Horizontal", 0),
    Sketcher.Constraint("Vertical", 1),
    Sketcher.Constraint("Horizontal", 2),
    Sketcher.Constraint("PointOnObject", 0, 2, -1),
    Sketcher.Constraint("Angle", 3, Q("-121 deg")),
    Sketcher.Constraint("DistanceX", 2, 2, 2, 1, Q("0.97 in")),
    Sketcher.Constraint("DistanceY", 1, 1, 1, 2, Q("0.2735 in")),
    Sketcher.Constraint("DistanceX", -1, 1, 0, 2, Q("6.482 in")),
])
groove6 = body.newObject("PartDesign::Groove", "Groove005")
groove6.Profile = sketch12
groove6.ReferenceAxis = (sketch12, ["H_Axis"])
groove6.Angle = 360

# Sketch on XY plane
sketch13 = body.newObject("Sketcher::SketchObject", "Sketch012")
sketch13.AttachmentSupport = (doc.getObject("XY_Plane"), [""])
sketch13.MapMode = "FlatFace"
sketch13.addGeometry([
    Part.LineSegment(App.Vector(13.284, 164.6428, 0), App.Vector(13.284, 151.9428, 0)),  # 0
    Part.ArcOfCircle(Part.Circle(App.Vector(14.046002, 151.9428, 0), App.Vector(0, 0, 1), 0.762002), math.radians(180), math.radians(225)),  # 1
    Part.LineSegment(App.Vector(13.507185, 151.403984, 0), App.Vector(16.332, 148.579169, 0)),  # 2
    Part.LineSegment(App.Vector(16.332, 148.579169, 0), App.Vector(16.332, 164.6428, 0)),  # 3
    Part.LineSegment(App.Vector(16.332, 164.6428, 0), App.Vector(13.284, 164.6428, 0)),  # 4
    Part.LineSegment(App.Vector(-13.284, 164.6428, 0), App.Vector(-16.332, 164.6428, 0)),  # 5
    Part.LineSegment(App.Vector(-16.332, 164.6428, 0), App.Vector(-16.332, 148.579169, 0)),  # 6
    Part.LineSegment(App.Vector(-16.332, 148.579169, 0), App.Vector(-13.507185, 151.403984, 0)),  # 7
    Part.ArcOfCircle(Part.Circle(App.Vector(-14.046002, 151.9428, 0), App.Vector(0, 0, 1), 0.762002), math.radians(-45), math.radians(0)),  # 8
    Part.LineSegment(App.Vector(-13.284, 151.9428, 0), App.Vector(-13.284, 164.6428, 0)),  # 9
], False)
sketch13.addConstraint([
    Sketcher.Constraint("Tangent", 0, 2, 1, 1),
    Sketcher.Constraint("Tangent", 1, 2, 2, 1),
    Sketcher.Constraint("Coincident", 2, 2, 3, 1),
    Sketcher.Constraint("Coincident", 3, 2, 4, 1),
    Sketcher.Constraint("Coincident", 4, 2, 0, 1),
    Sketcher.Constraint("Coincident", 5, 2, 6, 1),
    Sketcher.Constraint("Coincident", 6, 2, 7, 1),
    Sketcher.Constraint("Tangent", 7, 2, 8, 1),
    Sketcher.Constraint("Tangent", 8, 2, 9, 1),
    Sketcher.Constraint("Coincident", 9, 2, 5, 1),
    Sketcher.Constraint("Vertical", 0),
    Sketcher.Constraint("Vertical", 3),
    Sketcher.Constraint("Horizontal", 4),
    Sketcher.Constraint("Horizontal", 5),
    Sketcher.Constraint("Vertical", 6),
    Sketcher.Constraint("Vertical", 9),
    Sketcher.Constraint("Equal", 1, 8),
    Sketcher.Constraint("Symmetric", 1, 3, 8, 3, -2),
    Sketcher.Constraint("Symmetric", 3, 2, 5, 2, -2),
    Sketcher.Constraint("Perpendicular", 2, 7),
    Sketcher.Constraint("Horizontal", 2, 2, 6, 2),
    Sketcher.Constraint("Radius", 1, Q("0.0300001 in")),
    Sketcher.Constraint("DistanceY", 0, 2, 0, 1, Q("0.5 in")),
    Sketcher.Constraint("DistanceX", 4, 2, 4, 1, Q("0.12 in")),
    Sketcher.Constraint("DistanceY", -1, 1, 1, 3, Q("5.982 in")),
    Sketcher.Constraint("DistanceX", -1, 1, 1, 3, Q("14.046002 mm")),
])
pocket5 = body.newObject("PartDesign::Pocket", "Pocket004")
pocket5.Profile = sketch13
pocket5.Type = "ThroughAll"
pocket5.Midplane = True
doc.recompute()

chamfer2 = body.newObject("PartDesign::Chamfer", "Chamfer001")
chamfer2.Base = (pocket5, edges_at(pocket5, [(0, 164.643, -6.947)]))
chamfer2.Size = Q("0.0565 in")

# Sketch on XZ plane
sketch14 = body.newObject("Sketcher::SketchObject", "Sketch013")
sketch14.AttachmentSupport = (doc.getObject("XZ_Plane"), [""])
sketch14.MapMode = "FlatFace"
sketch14.addGeometry([
    Part.Circle(App.Vector(19.431, 0, 0), App.Vector(0, 0, 1), 1.27),  # 0
    Part.Circle(App.Vector(18.768905, -5.029113, 0), App.Vector(0, 0, 1), 1.27),  # 1
    Part.Circle(App.Vector(-9.7155, -16.82774, 0), App.Vector(0, 0, 1), 1.27),  # 2
    Part.Circle(App.Vector(-13.739792, -13.739792, 0), App.Vector(0, 0, 1), 1.27),  # 3
    Part.Circle(App.Vector(-9.7155, 16.82774, 0), App.Vector(0, 0, 1), 1.27),  # 4
    Part.Circle(App.Vector(-5.029113, 18.768905, 0), App.Vector(0, 0, 1), 1.27),  # 5
], False)
sketch14.addConstraint([
    Sketcher.Constraint("Equal", 0, 1),
    Sketcher.Constraint("Equal", 1, 2),
    Sketcher.Constraint("Equal", 2, 3),
    Sketcher.Constraint("Equal", 3, 4),
    Sketcher.Constraint("Equal", 4, 5),
    Sketcher.Constraint("Symmetric", 2, 3, 4, 3, -1),
    Sketcher.Constraint("PointOnObject", 0, 3, -1),
    Sketcher.Constraint("Diameter", 0, Q("0.1 in")),
    Sketcher.Constraint("DistanceX", -1, 1, 0, 3, Q("0.765 in")),
    Sketcher.Constraint("DistanceX", 2, 3, -1, 1, Q("0.3825 in")),
    Sketcher.Constraint("DistanceY", 2, 3, -1, 1, Q("16.82774 mm")),
    Sketcher.Constraint("DistanceX", 3, 3, -1, 1, Q("13.739792 mm")),
    Sketcher.Constraint("DistanceY", 3, 3, -1, 1, Q("13.739792 mm")),
    Sketcher.Constraint("DistanceY", 3, 3, 1, 3, Q("8.710679 mm")),
    Sketcher.Constraint("DistanceX", 3, 3, 5, 3, Q("8.710679 mm")),
    Sketcher.Constraint("DistanceX", -1, 1, 1, 3, Q("18.768905 mm")),
    Sketcher.Constraint("DistanceY", -1, 1, 5, 3, Q("18.768905 mm")),
])
pocket6 = body.newObject("PartDesign::Pocket", "Pocket005")
pocket6.Profile = sketch14
pocket6.Length = Q("0.3 in")

# Sketch on YZ plane
sketch15 = body.newObject("Sketcher::SketchObject", "Sketch014")
sketch15.AttachmentSupport = (doc.getObject("YZ_Plane"), [""])
sketch15.MapMode = "FlatFace"
sketch15.addGeometry([
    Part.LineSegment(App.Vector(1.3208, -11.6459, 0), App.Vector(0, -11.6459, 0)),
    Part.LineSegment(App.Vector(0, -11.6459, 0), App.Vector(0, -14.351, 0)),
    Part.LineSegment(App.Vector(0, -14.351, 0), App.Vector(1.3208, -14.351, 0)),
    Part.LineSegment(App.Vector(1.3208, -14.351, 0), App.Vector(1.3208, -11.6459, 0)),
], False)
sketch15.addConstraint([
    Sketcher.Constraint("Coincident", 0, 2, 1, 1),
    Sketcher.Constraint("Coincident", 1, 2, 2, 1),
    Sketcher.Constraint("Coincident", 2, 2, 3, 1),
    Sketcher.Constraint("Coincident", 3, 2, 0, 1),
    Sketcher.Constraint("Horizontal", 0),
    Sketcher.Constraint("Vertical", 1),
    Sketcher.Constraint("Horizontal", 2),
    Sketcher.Constraint("Vertical", 3),
    Sketcher.Constraint("PointOnObject", 0, 2, -2),
    Sketcher.Constraint("DistanceX", 0, 2, 0, 1, Q("0.052 in")),
    Sketcher.Constraint("DistanceY", 1, 2, 1, 1, Q("0.1065 in")),
    Sketcher.Constraint("DistanceY", 1, 2, -1, 1, Q("0.565 in")),
])
groove7 = body.newObject("PartDesign::Groove", "Groove006")
groove7.Profile = sketch15
groove7.ReferenceAxis = (sketch15, ["H_Axis"])
groove7.Angle = 360

# Sketch on YZ plane
sketch16 = body.newObject("Sketcher::SketchObject", "Sketch015")
sketch16.AttachmentSupport = (doc.getObject("YZ_Plane"), [""])
sketch16.MapMode = "FlatFace"
sketch16.addGeometry([
    Part.LineSegment(App.Vector(-26.486371, -3.175, 0), App.Vector(0, -3.175, 0)),  # 0
    Part.LineSegment(App.Vector(0, -3.175, 0), App.Vector(0, 0, 0)),  # 1
    Part.LineSegment(App.Vector(0, 0, 0), App.Vector(-39.1922, 0, 0)),  # 2
    Part.LineSegment(App.Vector(-39.1922, 0, 0), App.Vector(-39.1922, -1.9304, 0)),  # 3
    Part.LineSegment(App.Vector(-39.1922, -1.9304, 0), App.Vector(-38.6842, -2.4384, 0)),  # 4
    Part.LineSegment(App.Vector(-38.6842, -2.4384, 0), App.Vector(-27.7622, -2.4384, 0)),  # 5
    Part.LineSegment(App.Vector(-27.7622, -2.4384, 0), App.Vector(-26.486371, -3.175, 0)),  # 6
], False)
sketch16.addConstraint([
    Sketcher.Constraint("Coincident", 0, 2, 1, 1),
    Sketcher.Constraint("Coincident", 1, 2, 2, 1),
    Sketcher.Constraint("Coincident", 2, 2, 3, 1),
    Sketcher.Constraint("Coincident", 3, 2, 4, 1),
    Sketcher.Constraint("Coincident", 4, 2, 5, 1),
    Sketcher.Constraint("Coincident", 5, 2, 6, 1),
    Sketcher.Constraint("Coincident", 6, 2, 0, 1),
    Sketcher.Constraint("Horizontal", 0),
    Sketcher.Constraint("Vertical", 1),
    Sketcher.Constraint("Horizontal", 2),
    Sketcher.Constraint("Vertical", 3),
    Sketcher.Constraint("Horizontal", 5),
    Sketcher.Constraint("Coincident", 1, 2, -1, 1),
    Sketcher.Constraint("Angle", 4, Q("-45 deg")),
    Sketcher.Constraint("Angle", 6, Q("-30 deg")),
    Sketcher.Constraint("DistanceX", 5, 1, 5, 2, Q("0.43 in")),
    Sketcher.Constraint("DistanceX", 2, 2, 2, 1, Q("1.543 in")),
    Sketcher.Constraint("DistanceY", 1, 1, 1, 2, Q("0.125 in")),
    Sketcher.Constraint("DistanceY", 3, 2, 3, 1, Q("0.076 in")),
    Sketcher.Constraint("DistanceX", 3, 2, 4, 2, Q("0.02 in")),
])
revolution2 = body.newObject("PartDesign::Revolution", "Revolution001")
revolution2.Profile = sketch16
revolution2.ReferenceAxis = (sketch16, ["H_Axis"])
revolution2.Angle = 360

# Sketch on YZ plane
sketch17 = body.newObject("Sketcher::SketchObject", "Sketch016")
sketch17.AttachmentSupport = (doc.getObject("YZ_Plane"), [""])
sketch17.MapMode = "FlatFace"
sketch17.addGeometry([
    Part.LineSegment(App.Vector(-23.3172, -2.5019, 0), App.Vector(-27.652215, -2.5019, 0)),
    Part.LineSegment(App.Vector(-27.652215, -2.5019, 0), App.Vector(-27.652215, -3.2639, 0)),
    Part.LineSegment(App.Vector(-27.652215, -3.2639, 0), App.Vector(-22.5552, -3.2639, 0)),
    Part.LineSegment(App.Vector(-22.5552, -3.2639, 0), App.Vector(-23.3172, -2.5019, 0)),
], False)
sketch17.addConstraint([
    Sketcher.Constraint("Coincident", 0, 2, 1, 1),
    Sketcher.Constraint("Coincident", 1, 2, 2, 1),
    Sketcher.Constraint("Coincident", 2, 2, 3, 1),
    Sketcher.Constraint("Coincident", 3, 2, 0, 1),
    Sketcher.Constraint("Horizontal", 0),
    Sketcher.Constraint("Vertical", 1),
    Sketcher.Constraint("Horizontal", 2),
    Sketcher.Constraint("Angle", 3, Q("135 deg")),
    Sketcher.Constraint("DistanceY", 1, 2, 1, 1, Q("0.03 in")),
    Sketcher.Constraint("DistanceX", 2, 2, -1, 1, Q("0.888 in")),
    Sketcher.Constraint("DistanceY", 0, 2, -1, 1, Q("0.0985 in")),
    Sketcher.Constraint("DistanceX", 0, 2, 0, 1, Q("4.335015 mm")),
])
pocket7 = body.newObject("PartDesign::Pocket", "Pocket006")
pocket7.Profile = sketch17
pocket7.Length = Q("0.25 in")
pocket7.Midplane = True
doc.recompute()

mirrored4 = body.newObject("PartDesign::Mirrored", "Mirrored003")
mirrored4.Originals = [pocket7]
mirrored4.MirrorPlane = (doc.getObject("XY_Plane"), [""])
body.Tip = mirrored4
body2 = doc.addObject("PartDesign::Body", "Body001")

# Sketch on YZ plane
sketch18 = body2.newObject("Sketcher::SketchObject", "Sketch017")
sketch18.AttachmentSupport = (doc.getObject("YZ_Plane001"), [""])
sketch18.MapMode = "FlatFace"
sketch18.AttachmentOffset = App.Placement(App.Vector(0, 0, -1.381 * 25.4), App.Rotation())
sketch18.addGeometry(Part.Circle(App.Vector(79.6925, -10.0076, 0), App.Vector(0, 0, 1), 1.1811), False)
sketch18.addGeometry(Part.LineSegment(App.Vector(79.6925, -14.5288, 0), App.Vector(89.6925, -14.5288, 0)), True)  # axis
sketch18.addConstraint([
    Sketcher.Constraint("Horizontal", 1),
    Sketcher.Constraint("Vertical", 0, 3, 1, 1),
    Sketcher.Constraint("Diameter", 0, Q("0.093 in")),
    Sketcher.Constraint("DistanceY", 0, 3, -1, 1, Q("0.394 in")),
    Sketcher.Constraint("DistanceY", 1, 1, -1, 1, Q("0.572 in")),
    Sketcher.Constraint("DistanceX", 1, 1, 1, 2, Q("10 mm")),
    Sketcher.Constraint("DistanceX", -1, 1, 0, 3, Q("3.1375 in")),
])
revolution3 = body2.newObject("PartDesign::Revolution", "Revolution002")
revolution3.Profile = sketch18
revolution3.ReferenceAxis = (sketch18, ["Axis0"])
revolution3.Angle = 360
body3 = doc.addObject("PartDesign::Body", "Body002")
doc.recompute()

mirroring = doc.addObject("Part::Mirroring", "Mirroring")
mirroring.Source = body2
mirroring.Base = App.Vector(0, 0, 0)
mirroring.Normal = App.Vector(0, 0, 1)
body3.BaseFeature = mirroring
doc.recompute()
mirroring.Visibility = False

doc.recompute()
